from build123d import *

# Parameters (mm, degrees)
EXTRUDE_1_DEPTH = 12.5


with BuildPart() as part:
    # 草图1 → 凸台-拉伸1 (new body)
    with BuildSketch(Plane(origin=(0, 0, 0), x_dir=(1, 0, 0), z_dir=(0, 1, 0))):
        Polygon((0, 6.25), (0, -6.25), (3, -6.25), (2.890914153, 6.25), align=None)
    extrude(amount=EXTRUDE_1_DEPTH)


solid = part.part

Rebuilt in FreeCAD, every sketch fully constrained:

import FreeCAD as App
import Part
import Sketcher

V = App.Vector
Q = App.Units.Quantity

doc = App.newDocument("Part")
body = doc.addObject("PartDesign::Body", "Body")

# Sketch on XZ plane
sketch1 = body.newObject("Sketcher::SketchObject", "Sketch")
sketch1.AttachmentSupport = (doc.getObject("XZ_Plane"), [""])
sketch1.MapMode = "FlatFace"
sketch1.addGeometry([
    Part.LineSegment(V(0, -6.2, 0), V(0, 6.2, 0)),
    Part.LineSegment(V(0, 6.2, 0), V(3, 6.2, 0)),
    Part.LineSegment(V(3, 6.2, 0), V(2.9, -6.2, 0)),
    Part.LineSegment(V(2.9, -6.2, 0), V(0, -6.2, 0)),
], False)
sketch1.addConstraint([
    Sketcher.Constraint("Coincident", 0, 2, 1, 1),
    Sketcher.Constraint("Coincident", 1, 2, 2, 1),
    Sketcher.Constraint("Coincident", 2, 2, 3, 1),
    Sketcher.Constraint("Coincident", 3, 2, 0, 1),
    Sketcher.Constraint("Vertical", 0),
    Sketcher.Constraint("Horizontal", 1),
    Sketcher.Constraint("Horizontal", 3),
    Sketcher.Constraint("Symmetric", 0, 2, 3, 2, -1, 1),
    Sketcher.Constraint("DistanceX", 1, 1, 1, 2, 3.0),
    Sketcher.Constraint("DistanceY", 0, 1, 0, 2, 12.5),
    Sketcher.Constraint("Angle", 2, Q("-90.5 deg")),
])
pad1 = body.newObject("PartDesign::Pad", "Pad")
pad1.Profile = sketch1
pad1.Length = 12.5
pad1.Reversed = True

doc.recompute()
